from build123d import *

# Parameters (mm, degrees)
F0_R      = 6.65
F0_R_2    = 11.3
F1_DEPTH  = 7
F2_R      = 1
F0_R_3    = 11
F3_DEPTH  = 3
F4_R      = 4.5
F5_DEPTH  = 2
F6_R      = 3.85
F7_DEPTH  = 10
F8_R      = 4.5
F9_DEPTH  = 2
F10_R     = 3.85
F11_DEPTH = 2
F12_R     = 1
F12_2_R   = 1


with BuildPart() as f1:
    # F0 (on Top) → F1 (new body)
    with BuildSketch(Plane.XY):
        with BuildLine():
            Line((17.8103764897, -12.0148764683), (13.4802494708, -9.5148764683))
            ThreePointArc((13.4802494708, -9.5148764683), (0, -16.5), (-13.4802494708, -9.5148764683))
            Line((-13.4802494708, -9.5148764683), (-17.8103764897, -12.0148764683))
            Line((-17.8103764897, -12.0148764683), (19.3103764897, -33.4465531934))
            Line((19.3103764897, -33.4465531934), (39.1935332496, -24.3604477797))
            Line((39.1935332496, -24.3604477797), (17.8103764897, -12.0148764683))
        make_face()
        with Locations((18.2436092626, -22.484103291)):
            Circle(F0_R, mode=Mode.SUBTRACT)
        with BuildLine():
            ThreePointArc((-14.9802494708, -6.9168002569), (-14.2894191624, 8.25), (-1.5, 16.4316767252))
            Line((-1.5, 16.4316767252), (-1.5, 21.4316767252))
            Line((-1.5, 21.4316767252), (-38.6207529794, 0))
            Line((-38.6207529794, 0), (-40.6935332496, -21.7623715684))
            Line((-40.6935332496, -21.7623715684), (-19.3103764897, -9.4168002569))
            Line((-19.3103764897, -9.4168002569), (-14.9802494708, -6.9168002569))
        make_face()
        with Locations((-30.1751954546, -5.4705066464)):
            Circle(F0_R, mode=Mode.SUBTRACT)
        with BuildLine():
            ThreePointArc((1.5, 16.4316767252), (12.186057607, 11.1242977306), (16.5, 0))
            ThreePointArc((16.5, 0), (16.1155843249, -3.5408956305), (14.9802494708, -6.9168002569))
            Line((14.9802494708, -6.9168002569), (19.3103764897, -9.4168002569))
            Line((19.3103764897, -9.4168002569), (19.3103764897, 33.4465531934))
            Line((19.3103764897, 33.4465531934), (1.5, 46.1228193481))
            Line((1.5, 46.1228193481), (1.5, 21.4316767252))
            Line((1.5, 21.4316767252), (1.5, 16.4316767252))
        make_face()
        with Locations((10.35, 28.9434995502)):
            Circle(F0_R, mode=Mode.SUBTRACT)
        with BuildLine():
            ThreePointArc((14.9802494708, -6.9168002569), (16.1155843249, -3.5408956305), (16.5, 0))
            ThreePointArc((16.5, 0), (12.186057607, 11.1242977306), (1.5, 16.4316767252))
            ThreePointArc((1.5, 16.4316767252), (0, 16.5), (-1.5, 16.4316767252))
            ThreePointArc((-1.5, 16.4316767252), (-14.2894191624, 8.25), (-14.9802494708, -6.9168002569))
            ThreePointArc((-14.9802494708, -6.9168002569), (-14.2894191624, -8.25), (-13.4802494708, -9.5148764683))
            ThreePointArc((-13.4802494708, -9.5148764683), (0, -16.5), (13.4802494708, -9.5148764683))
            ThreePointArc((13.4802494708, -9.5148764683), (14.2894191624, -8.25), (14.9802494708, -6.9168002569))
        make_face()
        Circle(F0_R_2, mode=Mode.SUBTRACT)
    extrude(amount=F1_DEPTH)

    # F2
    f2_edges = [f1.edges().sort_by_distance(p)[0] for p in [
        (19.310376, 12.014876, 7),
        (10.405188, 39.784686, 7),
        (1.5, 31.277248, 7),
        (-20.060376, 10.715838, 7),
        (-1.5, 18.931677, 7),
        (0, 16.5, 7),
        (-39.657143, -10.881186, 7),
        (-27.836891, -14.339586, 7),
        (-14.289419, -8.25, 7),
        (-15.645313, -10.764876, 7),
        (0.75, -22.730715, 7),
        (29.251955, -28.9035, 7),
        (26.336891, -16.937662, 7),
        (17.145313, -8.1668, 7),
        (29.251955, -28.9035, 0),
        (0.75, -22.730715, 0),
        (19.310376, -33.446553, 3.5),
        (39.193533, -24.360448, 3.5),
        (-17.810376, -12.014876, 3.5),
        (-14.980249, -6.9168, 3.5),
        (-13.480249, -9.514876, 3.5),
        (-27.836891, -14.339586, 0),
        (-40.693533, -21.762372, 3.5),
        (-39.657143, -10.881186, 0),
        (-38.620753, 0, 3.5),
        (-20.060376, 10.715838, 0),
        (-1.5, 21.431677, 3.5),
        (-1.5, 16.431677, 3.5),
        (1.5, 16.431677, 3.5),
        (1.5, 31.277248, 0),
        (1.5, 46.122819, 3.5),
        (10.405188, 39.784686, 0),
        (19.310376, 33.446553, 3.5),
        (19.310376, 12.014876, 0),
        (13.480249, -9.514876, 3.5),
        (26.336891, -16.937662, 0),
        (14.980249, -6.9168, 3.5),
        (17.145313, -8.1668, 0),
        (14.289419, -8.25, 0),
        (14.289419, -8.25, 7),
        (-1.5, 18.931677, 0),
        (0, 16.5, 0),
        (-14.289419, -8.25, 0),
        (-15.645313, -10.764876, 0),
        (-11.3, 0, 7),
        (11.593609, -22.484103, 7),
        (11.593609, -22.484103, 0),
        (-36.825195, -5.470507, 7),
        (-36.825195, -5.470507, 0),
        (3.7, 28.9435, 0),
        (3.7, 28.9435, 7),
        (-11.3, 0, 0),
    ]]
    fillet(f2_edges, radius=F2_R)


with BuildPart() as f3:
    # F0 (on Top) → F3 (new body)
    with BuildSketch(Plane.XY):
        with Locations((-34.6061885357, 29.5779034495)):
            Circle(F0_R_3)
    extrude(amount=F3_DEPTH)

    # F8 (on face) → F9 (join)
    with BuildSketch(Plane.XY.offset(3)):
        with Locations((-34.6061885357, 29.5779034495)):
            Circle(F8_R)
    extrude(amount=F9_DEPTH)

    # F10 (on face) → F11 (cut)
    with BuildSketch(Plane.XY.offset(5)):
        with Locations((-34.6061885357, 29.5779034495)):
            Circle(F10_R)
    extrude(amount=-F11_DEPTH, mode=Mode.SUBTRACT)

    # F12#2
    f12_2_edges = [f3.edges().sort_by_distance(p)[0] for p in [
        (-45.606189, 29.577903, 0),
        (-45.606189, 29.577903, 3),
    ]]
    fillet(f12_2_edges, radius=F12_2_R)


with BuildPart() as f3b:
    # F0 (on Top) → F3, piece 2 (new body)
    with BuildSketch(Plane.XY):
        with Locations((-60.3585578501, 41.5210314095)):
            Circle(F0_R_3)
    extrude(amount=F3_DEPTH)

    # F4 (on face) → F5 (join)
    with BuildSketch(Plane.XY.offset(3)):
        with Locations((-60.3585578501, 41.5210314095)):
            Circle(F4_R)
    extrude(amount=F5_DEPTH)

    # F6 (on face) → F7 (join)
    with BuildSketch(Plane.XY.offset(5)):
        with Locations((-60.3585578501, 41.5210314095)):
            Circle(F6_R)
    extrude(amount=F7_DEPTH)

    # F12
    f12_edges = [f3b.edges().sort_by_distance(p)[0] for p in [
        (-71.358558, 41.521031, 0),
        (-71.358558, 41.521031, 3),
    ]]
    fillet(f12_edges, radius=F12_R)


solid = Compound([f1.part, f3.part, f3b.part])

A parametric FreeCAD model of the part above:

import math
import FreeCAD as App
import Part
import Sketcher

V = App.Vector
Q = App.Units.Quantity


def edges_at(feature, points):
    """Names of the edges that pass closest to the given points."""
    edges = feature.Shape.Edges
    near = lambda p: min(range(len(edges)), key=lambda i: edges[i].distToShape(Part.Vertex(*p))[0])
    return sorted({f"Edge{near(p) + 1}" for p in points})

doc = App.newDocument("Part")
body = doc.addObject("PartDesign::Body", "Body")

sketch1 = doc.addObject("Sketcher::SketchObject", "Sketch")
body.addObject(sketch1)
sketch1.AttachmentSupport = (doc.XY_Plane, [""])
sketch1.MapMode = "FlatFace"
sketch1.addGeometry(Part.LineSegment(V(17.810376, -12.014876, 0), V(13.480249, -9.514876, 0)), False)
sketch1.addGeometry(Part.ArcOfCircle(Part.Circle(V(0, 0, 0), V(0, 0, 1), 16.5), math.radians(-35.215909), math.radians(-24.784091)), False)
sketch1.addGeometry(Part.LineSegment(V(14.980249, -6.9168, 0), V(19.310376, -9.4168, 0)), False)
sketch1.addGeometry(Part.LineSegment(V(19.310376, -9.4168, 0), V(19.310376, 33.446553, 0)), False)
sketch1.addGeometry(Part.LineSegment(V(19.310376, 33.446553, 0), V(1.5, 46.122819, 0)), False)
sketch1.addGeometry(Part.LineSegment(V(1.5, 46.122819, 0), V(1.5, 16.431677, 0)), False)
sketch1.addGeometry(Part.ArcOfCircle(Part.Circle(V(0, 0, 0), V(0, 0, 1), 16.5), math.radians(84.784091), math.radians(95.215909)), False)
sketch1.addGeometry(Part.LineSegment(V(-1.5, 16.431677, 0), V(-1.5, 21.431677, 0)), False)
sketch1.addGeometry(Part.LineSegment(V(-1.5, 21.431677, 0), V(-38.620753, 0, 0)), False)
sketch1.addGeometry(Part.LineSegment(V(-38.620753, 0, 0), V(-40.693533, -21.762372, 0)), False)
sketch1.addGeometry(Part.LineSegment(V(-40.693533, -21.762372, 0), V(-14.980249, -6.9168, 0)), False)
sketch1.addGeometry(Part.ArcOfCircle(Part.Circle(V(0, 0, 0), V(0, 0, 1), 16.5), math.radians(-155.215909), math.radians(-144.784091)), False)
sketch1.addGeometry(Part.LineSegment(V(-13.480249, -9.514876, 0), V(-17.810376, -12.014876, 0)), False)
sketch1.addGeometry(Part.LineSegment(V(-17.810376, -12.014876, 0), V(19.310376, -33.446553, 0)), False)
sketch1.addGeometry(Part.LineSegment(V(19.310376, -33.446553, 0), V(39.193533, -24.360448, 0)), False)
sketch1.addGeometry(Part.LineSegment(V(39.193533, -24.360448, 0), V(17.810376, -12.014876, 0)), False)
sketch1.addGeometry(Part.Circle(V(-30.175195, -5.470507, 0), V(0, 0, 1), 6.65), False)
sketch1.addGeometry(Part.Circle(V(18.243609, -22.484103, 0), V(0, 0, 1), 6.65), False)
sketch1.addGeometry(Part.Circle(V(0, 0, 0), V(0, 0, 1), 11.3), False)
sketch1.addGeometry(Part.Circle(V(10.35, 28.9435, 0), V(0, 0, 1), 6.65), False)
sketch1.addConstraint(Sketcher.Constraint("Coincident", 0, 2, 1, 1))
sketch1.addConstraint(Sketcher.Constraint("Coincident", 1, 2, 2, 1))
sketch1.addConstraint(Sketcher.Constraint("Coincident", 2, 2, 3, 1))
sketch1.addConstraint(Sketcher.Constraint("Coincident", 3, 2, 4, 1))
sketch1.addConstraint(Sketcher.Constraint("Coincident", 4, 2, 5, 1))
sketch1.addConstraint(Sketcher.Constraint("Coincident", 5, 2, 6, 1))
sketch1.addConstraint(Sketcher.Constraint("Coincident", 6, 2, 7, 1))
sketch1.addConstraint(Sketcher.Constraint("Coincident", 7, 2, 8, 1))
sketch1.addConstraint(Sketcher.Constraint("Coincident", 8, 2, 9, 1))
sketch1.addConstraint(Sketcher.Constraint("Coincident", 9, 2, 10, 1))
sketch1.addConstraint(Sketcher.Constraint("Coincident", 10, 2, 11, 1))
sketch1.addConstraint(Sketcher.Constraint("Coincident", 11, 2, 12, 1))
sketch1.addConstraint(Sketcher.Constraint("Coincident", 12, 2, 13, 1))
sketch1.addConstraint(Sketcher.Constraint("Coincident", 13, 2, 14, 1))
sketch1.addConstraint(Sketcher.Constraint("Coincident", 14, 2, 15, 1))
sketch1.addConstraint(Sketcher.Constraint("Coincident", 15, 2, 0, 1))
sketch1.addConstraint(Sketcher.Constraint("Vertical", 3))
sketch1.addConstraint(Sketcher.Constraint("Vertical", 5))
sketch1.addConstraint(Sketcher.Constraint("Vertical", 7))
sketch1.addConstraint(Sketcher.Constraint("Coincident", 1, 3, -1, 1))
sketch1.addConstraint(Sketcher.Constraint("Coincident", 6, 3, -1, 1))
sketch1.addConstraint(Sketcher.Constraint("Coincident", 11, 3, -1, 1))
sketch1.addConstraint(Sketcher.Constraint("Coincident", 18, 3, -1, 1))
sketch1.addConstraint(Sketcher.Constraint("Equal", 1, 6))
sketch1.addConstraint(Sketcher.Constraint("Equal", 6, 11))
sketch1.addConstraint(Sketcher.Constraint("Equal", 16, 17))
sketch1.addConstraint(Sketcher.Constraint("Equal", 17, 19))
sketch1.addConstraint(Sketcher.Constraint("Symmetric", 12, 2, 15, 2, -2))
sketch1.addConstraint(Sketcher.Constraint("Symmetric", 3, 2, 13, 2, -1))
sketch1.addConstraint(Sketcher.Constraint("PointOnObject", 8, 2, -1))
sketch1.addConstraint(Sketcher.Constraint("Parallel", 0, 2))
sketch1.addConstraint(Sketcher.Constraint("Parallel", 8, 10))
sketch1.addConstraint(Sketcher.Constraint("Parallel", 10, 12))
sketch1.addConstraint(Sketcher.Constraint("Parallel", 2, 13))
sketch1.addConstraint(Sketcher.Constraint("Parallel", 13, 15))
sketch1.addConstraint(Sketcher.Constraint("Horizontal", 5, 2, 6, 2))
sketch1.addConstraint(Sketcher.Constraint("Horizontal", 1, 2, 10, 2))
sketch1.addConstraint(Sketcher.Constraint("Horizontal", 0, 2, 11, 2))
sketch1.addConstraint(Sketcher.Constraint("Equal", 0, 2))
sketch1.addConstraint(Sketcher.Constraint("Equal", 4, 9))
sketch1.addConstraint(Sketcher.Constraint("Equal", 8, 13))
sketch1.addConstraint(Sketcher.Constraint("Equal", 9, 14))
sketch1.addConstraint(Sketcher.Constraint("Diameter", 16, 13.3))
sketch1.addConstraint(Sketcher.Constraint("Diameter", 18, 22.6))
sketch1.addConstraint(Sketcher.Constraint("Radius", 1, 16.5))
sketch1.addConstraint(Sketcher.Constraint("DistanceY", 7, 1, 7, 2, 5.0))
sketch1.addConstraint(Sketcher.Constraint("Angle", 0, Q("150 deg")))
sketch1.addConstraint(Sketcher.Constraint("Distance", 0, 5.0))
sketch1.addConstraint(Sketcher.Constraint("DistanceX", 6, 2, 5, 2, 3.0))
sketch1.addConstraint(Sketcher.Constraint("DistanceX", 0, 2, 1, 2, 1.5))
sketch1.addConstraint(Sketcher.Constraint("DistanceX", -1, 1, 19, 3, 10.35))
sketch1.addConstraint(Sketcher.Constraint("DistanceY", -1, 1, 19, 3, 28.9435))
sketch1.addConstraint(Sketcher.Constraint("Distance", 4, 21.860861))
sketch1.addConstraint(Sketcher.Constraint("DistanceX", -1, 1, 17, 3, 18.243609))
sketch1.addConstraint(Sketcher.Constraint("DistanceX", 16, 3, 12, 2, 12.364819))
sketch1.addConstraint(Sketcher.Constraint("DistanceY", 12, 2, 16, 3, 6.54437))
sketch1.addConstraint(Sketcher.Constraint("DistanceY", 13, 2, 17, 3, 10.96245))
pad1 = doc.addObject("PartDesign::Pad", "Pad")
body.addObject(pad1)
pad1.Profile = sketch1
pad1.Length = 7
doc.recompute()

fillet = doc.addObject("PartDesign::Fillet", "Fillet")
body.addObject(fillet)
fillet.Base = (pad1, edges_at(pad1, [
    (19.31, 12.015, 7),
    (10.405, 39.785, 7),
    (1.5, 31.277, 7),
    (-20.06, 10.716, 7),
    (-1.5, 18.932, 7),
    (0, 16.5, 7),
    (-39.657, -10.881, 7),
    (-27.837, -14.34, 7),
    (-14.289, -8.25, 7),
    (-15.645, -10.765, 7),
    (0.75, -22.731, 7),
    (29.252, -28.904, 7),
    (28.502, -18.188, 7),
    (17.145, -8.167, 7),
    (29.252, -28.904, 0),
    (0.75, -22.731, 0),
    (19.31, -33.447, 3.5),
    (39.194, -24.36, 3.5),
    (-17.81, -12.015, 3.5),
    (-14.98, -6.917, 3.5),
    (-13.48, -9.515, 3.5),
    (-27.837, -14.34, 0),
    (-40.694, -21.762, 3.5),
    (-39.657, -10.881, 0),
    (-38.621, 0, 3.5),
    (-20.06, 10.716, 0),
    (-1.5, 21.432, 3.5),
    (-1.5, 16.432, 3.5),
    (1.5, 16.432, 3.5),
    (1.5, 31.277, 0),
    (1.5, 46.123, 3.5),
    (10.405, 39.785, 0),
    (19.31, 33.447, 3.5),
    (19.31, 12.015, 0),
    (13.48, -9.515, 3.5),
    (28.502, -18.188, 0),
    (14.98, -6.917, 3.5),
    (17.145, -8.167, 0),
    (14.289, -8.25, 0),
    (14.289, -8.25, 7),
    (-1.5, 18.932, 0),
    (0, 16.5, 0),
    (-14.289, -8.25, 0),
    (-15.645, -10.765, 0),
    (-11.3, 0, 7),
    (11.594, -22.484, 7),
    (11.594, -22.484, 0),
    (-36.825, -5.471, 7),
    (-36.825, -5.471, 0),
    (3.7, 28.943, 0),
    (3.7, 28.943, 7),
    (-11.3, 0, 0),
]))
fillet.Radius = 1
body2 = doc.addObject("PartDesign::Body", "Body001")

sketch2 = doc.addObject("Sketcher::SketchObject", "Sketch001")
body2.addObject(sketch2)
sketch2.AttachmentSupport = (doc.getObject("XY_Plane001"), [""])
sketch2.MapMode = "FlatFace"
sketch2.addGeometry(Part.Circle(V(-34.606189, 29.577903, 0), V(0, 0, 1), 11), False)
sketch2.addConstraint(Sketcher.Constraint("Diameter", 0, 22.0))
sketch2.addConstraint(Sketcher.Constraint("DistanceX", 0, 3, -1, 1, 34.606189))
sketch2.addConstraint(Sketcher.Constraint("DistanceY", -1, 1, 0, 3, 29.577903))
pad2 = doc.addObject("PartDesign::Pad", "Pad001")
body2.addObject(pad2)
pad2.Profile = sketch2
pad2.Length = 3

sketch3 = doc.addObject("Sketcher::SketchObject", "Sketch002")
body2.addObject(sketch3)
sketch3.AttachmentSupport = (doc.getObject("XY_Plane001"), [""])
sketch3.MapMode = "FlatFace"
sketch3.AttachmentOffset = App.Placement(V(0, 0, 3), App.Rotation())
sketch3.addGeometry(Part.Circle(V(-34.606189, 29.577903, 0), V(0, 0, 1), 4.5), False)
sketch3.addConstraint(Sketcher.Constraint("Diameter", 0, 9.0))
sketch3.addConstraint(Sketcher.Constraint("DistanceX", 0, 3, -1, 1, 34.606189))
sketch3.addConstraint(Sketcher.Constraint("DistanceY", -1, 1, 0, 3, 29.577903))
pad3 = doc.addObject("PartDesign::Pad", "Pad002")
body2.addObject(pad3)
pad3.Profile = sketch3
pad3.Length = 2

sketch4 = doc.addObject("Sketcher::SketchObject", "Sketch003")
body2.addObject(sketch4)
sketch4.AttachmentSupport = (doc.getObject("XY_Plane001"), [""])
sketch4.MapMode = "FlatFace"
sketch4.AttachmentOffset = App.Placement(V(0, 0, 5), App.Rotation())
sketch4.addGeometry(Part.Circle(V(-34.606189, 29.577903, 0), V(0, 0, 1), 3.85), False)
sketch4.addConstraint(Sketcher.Constraint("Diameter", 0, 7.7))
sketch4.addConstraint(Sketcher.Constraint("DistanceX", 0, 3, -1, 1, 34.606189))
sketch4.addConstraint(Sketcher.Constraint("DistanceY", -1, 1, 0, 3, 29.577903))
pocket1 = doc.addObject("PartDesign::Pocket", "Pocket")
body2.addObject(pocket1)
pocket1.Profile = sketch4
pocket1.Length = 2
doc.recompute()

fillet2 = doc.addObject("PartDesign::Fillet", "Fillet001")
body2.addObject(fillet2)
fillet2.Base = (pocket1, edges_at(pocket1, [(-45.606, 29.578, 0), (-45.606, 29.578, 3)]))
fillet2.Radius = 1
body3 = doc.addObject("PartDesign::Body", "Body002")

sketch5 = doc.addObject("Sketcher::SketchObject", "Sketch004")
body3.addObject(sketch5)
sketch5.AttachmentSupport = (doc.getObject("XY_Plane002"), [""])
sketch5.MapMode = "FlatFace"
sketch5.addGeometry(Part.Circle(V(-60.358558, 41.521031, 0), V(0, 0, 1), 11), False)
sketch5.addConstraint(Sketcher.Constraint("Diameter", 0, 22.0))
sketch5.addConstraint(Sketcher.Constraint("DistanceY", -1, 1, 0, 3, 41.521031))
sketch5.addConstraint(Sketcher.Constraint("DistanceX", 0, 3, -1, 1, 60.358558))
pad4 = doc.addObject("PartDesign::Pad", "Pad003")
body3.addObject(pad4)
pad4.Profile = sketch5
pad4.Length = 3

sketch6 = doc.addObject("Sketcher::SketchObject", "Sketch005")
body3.addObject(sketch6)
sketch6.AttachmentSupport = (doc.getObject("XY_Plane002"), [""])
sketch6.MapMode = "FlatFace"
sketch6.AttachmentOffset = App.Placement(V(0, 0, 3), App.Rotation())
sketch6.addGeometry(Part.Circle(V(-60.358558, 41.521031, 0), V(0, 0, 1), 4.5), False)
sketch6.addConstraint(Sketcher.Constraint("Diameter", 0, 9.0))
sketch6.addConstraint(Sketcher.Constraint("DistanceY", -1, 1, 0, 3, 41.521031))
sketch6.addConstraint(Sketcher.Constraint("DistanceX", 0, 3, -1, 1, 60.358558))
pad5 = doc.addObject("PartDesign::Pad", "Pad004")
body3.addObject(pad5)
pad5.Profile = sketch6
pad5.Length = 2

sketch7 = doc.addObject("Sketcher::SketchObject", "Sketch006")
body3.addObject(sketch7)
sketch7.AttachmentSupport = (doc.getObject("XY_Plane002"), [""])
sketch7.MapMode = "FlatFace"
sketch7.AttachmentOffset = App.Placement(V(0, 0, 5), App.Rotation())
sketch7.addGeometry(Part.Circle(V(-60.358558, 41.521031, 0), V(0, 0, 1), 3.85), False)
sketch7.addConstraint(Sketcher.Constraint("Diameter", 0, 7.7))
sketch7.addConstraint(Sketcher.Constraint("DistanceY", -1, 1, 0, 3, 41.521031))
sketch7.addConstraint(Sketcher.Constraint("DistanceX", 0, 3, -1, 1, 60.358558))
pad6 = doc.addObject("PartDesign::Pad", "Pad005")
body3.addObject(pad6)
pad6.Profile = sketch7
pad6.Length = 10
doc.recompute()

fillet3 = doc.addObject("PartDesign::Fillet", "Fillet002")
body3.addObject(fillet3)
fillet3.Base = (pad6, edges_at(pad6, [(-71.359, 41.521, 0), (-71.359, 41.521, 3)]))
fillet3.Radius = 1

doc.recompute()
